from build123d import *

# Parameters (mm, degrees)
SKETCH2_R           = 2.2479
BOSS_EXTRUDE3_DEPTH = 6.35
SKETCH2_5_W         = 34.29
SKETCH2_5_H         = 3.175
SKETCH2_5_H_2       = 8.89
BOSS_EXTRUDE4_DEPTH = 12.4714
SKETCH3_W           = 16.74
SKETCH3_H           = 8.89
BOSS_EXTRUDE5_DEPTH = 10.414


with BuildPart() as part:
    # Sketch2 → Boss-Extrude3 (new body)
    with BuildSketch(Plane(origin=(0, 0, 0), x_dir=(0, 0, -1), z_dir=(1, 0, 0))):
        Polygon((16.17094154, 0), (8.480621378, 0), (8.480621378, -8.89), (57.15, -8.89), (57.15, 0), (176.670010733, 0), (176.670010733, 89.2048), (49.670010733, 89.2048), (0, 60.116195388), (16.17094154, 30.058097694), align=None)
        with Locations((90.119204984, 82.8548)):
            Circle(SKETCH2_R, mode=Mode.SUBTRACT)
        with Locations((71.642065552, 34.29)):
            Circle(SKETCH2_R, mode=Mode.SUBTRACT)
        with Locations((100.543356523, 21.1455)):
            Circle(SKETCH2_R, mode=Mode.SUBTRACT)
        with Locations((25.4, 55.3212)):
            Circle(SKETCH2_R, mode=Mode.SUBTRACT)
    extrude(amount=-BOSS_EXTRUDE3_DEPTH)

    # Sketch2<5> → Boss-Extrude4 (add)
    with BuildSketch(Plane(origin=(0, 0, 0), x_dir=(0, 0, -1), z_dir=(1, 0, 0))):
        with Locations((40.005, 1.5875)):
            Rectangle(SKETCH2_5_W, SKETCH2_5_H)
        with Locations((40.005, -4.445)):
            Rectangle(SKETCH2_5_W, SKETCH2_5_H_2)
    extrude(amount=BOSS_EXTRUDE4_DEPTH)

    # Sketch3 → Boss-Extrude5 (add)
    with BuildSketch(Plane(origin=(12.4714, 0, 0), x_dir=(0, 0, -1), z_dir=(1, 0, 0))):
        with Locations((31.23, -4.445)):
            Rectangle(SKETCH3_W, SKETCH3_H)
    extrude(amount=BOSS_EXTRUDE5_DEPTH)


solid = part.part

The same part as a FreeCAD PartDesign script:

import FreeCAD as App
import Part
import Sketcher
from FreeCAD import Vector
Q = App.Units.Quantity


def add_polygon(sketch, points):
    """Adds a closed chain of lines whose ends are joined by coincident constraints."""
    first, n = sketch.GeometryCount, len(points)
    for a, b in zip(points, points[1:] + points[:1]):
        sketch.addGeometry(Part.LineSegment(App.Vector(*a, 0), App.Vector(*b, 0)), False)
    for i in range(n):
        sketch.addConstraint(Sketcher.Constraint("Coincident", first + i, 2, first + (i + 1) % n, 1))

doc = App.newDocument("Part")
params = doc.addObject("Spreadsheet::Sheet", "Params")
for row, (alias, value) in enumerate([
    ("sketch1_height", "5 in"),
    ("sketch1_diameter", "0.177 in"),
    ("sketch1_width", "0.35 in"),
    ("sketch1_width2", "3.512 in"),
    ("pad1_length", "0.25 in"),
    ("sketch2_height", "1.35 in"),
    ("sketch2_width", "0.475 in"),
    ("pad2_length", "0.491 in"),
    ("sketch3_width", "0.35 in"),
    ("pad3_length", "0.41 in"),
], start=1):
    params.set(f"A{row}", alias)
    params.set(f"B{row}", "=" + value)
    params.setAlias(f"B{row}", alias)

body = doc.addObject("PartDesign::Body", "Body")

# Sketch on YZ plane
sketch1 = doc.addObject("Sketcher::SketchObject", "Sketch")
body.addObject(sketch1)
sketch1.AttachmentSupport = (doc.YZ_Plane, [""])
sketch1.MapMode = "FlatFace"
add_polygon(sketch1, [(0, -16.170942), (0, -8.480621), (-8.89, -8.480621), (-8.89, -57.15), (0, -57.15), (0, -176.670011), (89.2048, -176.670011), (89.2048, -49.670011), (60.116195, 0), (30.058098, -16.170942)])  # lines 0-9
sketch1.addGeometry(Part.Circle(Vector(34.29, -71.642066, 0), Vector(0, 0, 1), 2.2479), False)  # 10
sketch1.addGeometry(Part.Circle(Vector(21.1455, -100.543357, 0), Vector(0, 0, 1), 2.2479), False)  # 11
sketch1.addGeometry(Part.Circle(Vector(55.3212, -25.4, 0), Vector(0, 0, 1), 2.2479), False)  # 12
sketch1.addGeometry(Part.Circle(Vector(82.8548, -90.119205, 0), Vector(0, 0, 1), 2.2479), False)  # 13
sketch1.addConstraint([
    Sketcher.Constraint("Vertical", 0),
    Sketcher.Constraint("Horizontal", 1),
    Sketcher.Constraint("Vertical", 2),
    Sketcher.Constraint("Horizontal", 3),
    Sketcher.Constraint("Vertical", 4),
    Sketcher.Constraint("Horizontal", 5),
    Sketcher.Constraint("Vertical", 6),
    Sketcher.Constraint("Horizontal", 9),
    Sketcher.Constraint("Equal", 10, 11),
    Sketcher.Constraint("Equal", 11, 12),
    Sketcher.Constraint("Equal", 12, 13),
    Sketcher.Constraint("PointOnObject", 0, 2, -2),
    Sketcher.Constraint("PointOnObject", 3, 2, -2),
    Sketcher.Constraint("PointOnObject", 7, 2, -1),
    Sketcher.Constraint("DistanceY", 6, 1, 6, 2, Q("5 in")),
    Sketcher.Constraint("Diameter", 10, Q("0.177 in")),
    Sketcher.Constraint("DistanceY", 12, 3, -1, 1, Q("1 in")),
    Sketcher.Constraint("DistanceX", 1, 2, 1, 1, Q("0.35 in")),
    Sketcher.Constraint("DistanceX", 1, 2, 10, 3, Q("1.7 in")),
    Sketcher.Constraint("DistanceX", 5, 1, 5, 2, Q("3.512 in")),
    Sketcher.Constraint("DistanceY", 2, 2, -1, 1, Q("2.25 in")),
    Sketcher.Constraint("DistanceX", 13, 3, 5, 2, Q("0.25 in")),
    Sketcher.Constraint("DistanceX", -1, 1, 12, 3, Q("2.178 in")),
    Sketcher.Constraint("DistanceY", 13, 3, -1, 1, Q("3.5480002 in")),
    Sketcher.Constraint("DistanceX", -1, 1, 11, 3, Q("0.8325 in")),
    Sketcher.Constraint("DistanceY", 11, 3, -1, 1, Q("3.9583999 in")),
    Sketcher.Constraint("DistanceY", 0, 1, 0, 2, Q("7.69032 mm")),
    Sketcher.Constraint("DistanceY", 2, 2, 2, 1, Q("48.669379 mm")),
    Sketcher.Constraint("DistanceY", 4, 2, 4, 1, Q("119.520011 mm")),
    Sketcher.Constraint("Distance", 8, Q("34.131929 mm")),
    Sketcher.Constraint("DistanceX", 9, 2, 9, 1, Q("30.058098 mm")),
    Sketcher.Constraint("DistanceY", 11, 3, 10, 3, Q("28.901291 mm")),
])
sketch1.setExpression("Constraints[24]", "Params.sketch1_height")
sketch1.setExpression("Constraints[25]", "Params.sketch1_diameter")
sketch1.setExpression("Constraints[27]", "Params.sketch1_width")
sketch1.setExpression("Constraints[29]", "Params.sketch1_width2")
pad1 = doc.addObject("PartDesign::Pad", "Pad")
body.addObject(pad1)
pad1.Profile = sketch1
pad1.setExpression("Length", "Params.pad1_length")
pad1.Reversed = True

# Sketch on YZ plane
sketch2 = doc.addObject("Sketcher::SketchObject", "Sketch001")
body.addObject(sketch2)
sketch2.AttachmentSupport = (doc.YZ_Plane, [""])
sketch2.MapMode = "FlatFace"
add_polygon(sketch2, [(3.175, -22.86), (-8.89, -22.86), (-8.89, -57.15), (3.175, -57.15)])  # lines 0-3
sketch2.addConstraint([
    Sketcher.Constraint("Horizontal", 0),
    Sketcher.Constraint("Vertical", 1),
    Sketcher.Constraint("Horizontal", 2),
    Sketcher.Constraint("Vertical", 3),
    Sketcher.Constraint("DistanceY", 1, 2, 1, 1, Q("1.35 in")),
    Sketcher.Constraint("DistanceY", 0, 2, -1, 1, Q("0.9 in")),
    Sketcher.Constraint("DistanceX", 0, 2, 0, 1, Q("0.475 in")),
    Sketcher.Constraint("DistanceX", 0, 2, -1, 1, Q("0.35 in")),
])
sketch2.setExpression("Constraints[8]", "Params.sketch2_height")
sketch2.setExpression("Constraints[10]", "Params.sketch2_width")
pad2 = doc.addObject("PartDesign::Pad", "Pad001")
body.addObject(pad2)
pad2.Profile = sketch2
pad2.setExpression("Length", "Params.pad2_length")

# Sketch on YZ plane
sketch3 = doc.addObject("Sketcher::SketchObject", "Sketch002")
body.addObject(sketch3)
sketch3.AttachmentSupport = (doc.YZ_Plane, [""])
sketch3.MapMode = "FlatFace"
sketch3.AttachmentOffset = App.Placement(Vector(0, 0, 0.491 * 25.4), App.Rotation())
add_polygon(sketch3, [(0, -22.86), (-8.89, -22.86), (-8.89, -39.6), (0, -39.6)])  # lines 0-3
sketch3.addConstraint([
    Sketcher.Constraint("Horizontal", 0),
    Sketcher.Constraint("Vertical", 1),
    Sketcher.Constraint("Horizontal", 2),
    Sketcher.Constraint("Vertical", 3),
    Sketcher.Constraint("PointOnObject", 2, 2, -2),
    Sketcher.Constraint("DistanceX", 0, 2, 0, 1, Q("0.35 in")),
    Sketcher.Constraint("DistanceY", 0, 2, -1, 1, Q("0.9 in")),
    Sketcher.Constraint("DistanceY", 1, 2, 1, 1, Q("16.74 mm")),
])
sketch3.setExpression("Constraints[9]", "Params.sketch3_width")
pad3 = doc.addObject("PartDesign::Pad", "Pad002")
body.addObject(pad3)
pad3.Profile = sketch3
pad3.setExpression("Length", "Params.pad3_length")

doc.recompute()
